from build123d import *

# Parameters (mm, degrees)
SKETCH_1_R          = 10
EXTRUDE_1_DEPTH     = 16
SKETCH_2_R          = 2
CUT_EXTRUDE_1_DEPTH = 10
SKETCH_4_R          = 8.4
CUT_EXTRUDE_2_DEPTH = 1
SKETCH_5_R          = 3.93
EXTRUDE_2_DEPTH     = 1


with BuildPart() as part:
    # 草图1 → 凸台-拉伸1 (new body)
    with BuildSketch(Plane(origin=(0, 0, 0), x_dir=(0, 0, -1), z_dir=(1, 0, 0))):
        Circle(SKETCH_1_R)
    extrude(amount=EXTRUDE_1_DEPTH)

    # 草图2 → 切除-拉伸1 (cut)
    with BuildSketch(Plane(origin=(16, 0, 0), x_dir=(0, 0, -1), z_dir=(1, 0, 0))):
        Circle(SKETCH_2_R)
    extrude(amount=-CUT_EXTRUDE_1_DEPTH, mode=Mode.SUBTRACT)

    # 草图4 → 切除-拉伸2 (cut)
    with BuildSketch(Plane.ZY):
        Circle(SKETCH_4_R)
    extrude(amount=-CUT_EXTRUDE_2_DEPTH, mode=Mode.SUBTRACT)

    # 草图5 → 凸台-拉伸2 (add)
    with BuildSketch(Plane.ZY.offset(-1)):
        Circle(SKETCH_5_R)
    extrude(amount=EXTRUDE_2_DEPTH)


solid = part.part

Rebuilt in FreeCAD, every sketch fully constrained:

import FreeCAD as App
import Part
import Sketcher
Q = App.Units.Quantity

doc = App.newDocument("Part")
body = doc.addObject("PartDesign::Body", "Body")

sketch1 = body.newObject("Sketcher::SketchObject", "Sketch")
sketch1.AttachmentSupport = (doc.getObject("YZ_Plane"), [""])
sketch1.MapMode = "FlatFace"
sketch1.addGeometry(Part.Circle(App.Vector(0, 0, 0), App.Vector(0, 0, 1), 10), False)
sketch1.addConstraint(Sketcher.Constraint("Coincident", 0, 3, -1, 1))
sketch1.addConstraint(Sketcher.Constraint("Diameter", 0, Q("20 mm")))
pad1 = body.newObject("PartDesign::Pad", "Pad")
pad1.Profile = sketch1
pad1.Length = 16

sketch2 = body.newObject("Sketcher::SketchObject", "Sketch001")
sketch2.AttachmentSupport = (doc.getObject("YZ_Plane"), [""])
sketch2.MapMode = "FlatFace"
sketch2.AttachmentOffset = App.Placement(App.Vector(0, 0, 16), App.Rotation())
sketch2.addGeometry(Part.Circle(App.Vector(0, 0, 0), App.Vector(0, 0, 1), 2), False)
sketch2.addConstraint(Sketcher.Constraint("Coincident", 0, 3, -1, 1))
sketch2.addConstraint(Sketcher.Constraint("Diameter", 0, Q("4 mm")))
pocket1 = body.newObject("PartDesign::Pocket", "Pocket")
pocket1.Profile = sketch2
pocket1.Length = 10

sketch3 = body.newObject("Sketcher::SketchObject", "Sketch002")
sketch3.AttachmentSupport = (doc.getObject("YZ_Plane"), [""])
sketch3.MapMode = "FlatFace"
sketch3.addGeometry(Part.Circle(App.Vector(0, 0, 0), App.Vector(0, 0, 1), 8), False)
sketch3.addConstraint(Sketcher.Constraint("Coincident", 0, 3, -1, 1))
sketch3.addConstraint(Sketcher.Constraint("Diameter", 0, Q("16.8 mm")))
pocket2 = body.newObject("PartDesign::Pocket", "Pocket001")
pocket2.Profile = sketch3
pocket2.Length = 1
pocket2.Reversed = True

sketch4 = body.newObject("Sketcher::SketchObject", "Sketch003")
sketch4.AttachmentSupport = (doc.getObject("YZ_Plane"), [""])
sketch4.MapMode = "FlatFace"
sketch4.AttachmentOffset = App.Placement(App.Vector(0, 0, 1), App.Rotation())
sketch4.addGeometry(Part.Circle(App.Vector(0, 0, 0), App.Vector(0, 0, 1), 3.9), False)
sketch4.addConstraint(Sketcher.Constraint("Coincident", 0, 3, -1, 1))
sketch4.addConstraint(Sketcher.Constraint("Diameter", 0, Q("7.86 mm")))
pad2 = body.newObject("PartDesign::Pad", "Pad001")
pad2.Profile = sketch4
pad2.Length = 1
pad2.Reversed = True

doc.recompute()
